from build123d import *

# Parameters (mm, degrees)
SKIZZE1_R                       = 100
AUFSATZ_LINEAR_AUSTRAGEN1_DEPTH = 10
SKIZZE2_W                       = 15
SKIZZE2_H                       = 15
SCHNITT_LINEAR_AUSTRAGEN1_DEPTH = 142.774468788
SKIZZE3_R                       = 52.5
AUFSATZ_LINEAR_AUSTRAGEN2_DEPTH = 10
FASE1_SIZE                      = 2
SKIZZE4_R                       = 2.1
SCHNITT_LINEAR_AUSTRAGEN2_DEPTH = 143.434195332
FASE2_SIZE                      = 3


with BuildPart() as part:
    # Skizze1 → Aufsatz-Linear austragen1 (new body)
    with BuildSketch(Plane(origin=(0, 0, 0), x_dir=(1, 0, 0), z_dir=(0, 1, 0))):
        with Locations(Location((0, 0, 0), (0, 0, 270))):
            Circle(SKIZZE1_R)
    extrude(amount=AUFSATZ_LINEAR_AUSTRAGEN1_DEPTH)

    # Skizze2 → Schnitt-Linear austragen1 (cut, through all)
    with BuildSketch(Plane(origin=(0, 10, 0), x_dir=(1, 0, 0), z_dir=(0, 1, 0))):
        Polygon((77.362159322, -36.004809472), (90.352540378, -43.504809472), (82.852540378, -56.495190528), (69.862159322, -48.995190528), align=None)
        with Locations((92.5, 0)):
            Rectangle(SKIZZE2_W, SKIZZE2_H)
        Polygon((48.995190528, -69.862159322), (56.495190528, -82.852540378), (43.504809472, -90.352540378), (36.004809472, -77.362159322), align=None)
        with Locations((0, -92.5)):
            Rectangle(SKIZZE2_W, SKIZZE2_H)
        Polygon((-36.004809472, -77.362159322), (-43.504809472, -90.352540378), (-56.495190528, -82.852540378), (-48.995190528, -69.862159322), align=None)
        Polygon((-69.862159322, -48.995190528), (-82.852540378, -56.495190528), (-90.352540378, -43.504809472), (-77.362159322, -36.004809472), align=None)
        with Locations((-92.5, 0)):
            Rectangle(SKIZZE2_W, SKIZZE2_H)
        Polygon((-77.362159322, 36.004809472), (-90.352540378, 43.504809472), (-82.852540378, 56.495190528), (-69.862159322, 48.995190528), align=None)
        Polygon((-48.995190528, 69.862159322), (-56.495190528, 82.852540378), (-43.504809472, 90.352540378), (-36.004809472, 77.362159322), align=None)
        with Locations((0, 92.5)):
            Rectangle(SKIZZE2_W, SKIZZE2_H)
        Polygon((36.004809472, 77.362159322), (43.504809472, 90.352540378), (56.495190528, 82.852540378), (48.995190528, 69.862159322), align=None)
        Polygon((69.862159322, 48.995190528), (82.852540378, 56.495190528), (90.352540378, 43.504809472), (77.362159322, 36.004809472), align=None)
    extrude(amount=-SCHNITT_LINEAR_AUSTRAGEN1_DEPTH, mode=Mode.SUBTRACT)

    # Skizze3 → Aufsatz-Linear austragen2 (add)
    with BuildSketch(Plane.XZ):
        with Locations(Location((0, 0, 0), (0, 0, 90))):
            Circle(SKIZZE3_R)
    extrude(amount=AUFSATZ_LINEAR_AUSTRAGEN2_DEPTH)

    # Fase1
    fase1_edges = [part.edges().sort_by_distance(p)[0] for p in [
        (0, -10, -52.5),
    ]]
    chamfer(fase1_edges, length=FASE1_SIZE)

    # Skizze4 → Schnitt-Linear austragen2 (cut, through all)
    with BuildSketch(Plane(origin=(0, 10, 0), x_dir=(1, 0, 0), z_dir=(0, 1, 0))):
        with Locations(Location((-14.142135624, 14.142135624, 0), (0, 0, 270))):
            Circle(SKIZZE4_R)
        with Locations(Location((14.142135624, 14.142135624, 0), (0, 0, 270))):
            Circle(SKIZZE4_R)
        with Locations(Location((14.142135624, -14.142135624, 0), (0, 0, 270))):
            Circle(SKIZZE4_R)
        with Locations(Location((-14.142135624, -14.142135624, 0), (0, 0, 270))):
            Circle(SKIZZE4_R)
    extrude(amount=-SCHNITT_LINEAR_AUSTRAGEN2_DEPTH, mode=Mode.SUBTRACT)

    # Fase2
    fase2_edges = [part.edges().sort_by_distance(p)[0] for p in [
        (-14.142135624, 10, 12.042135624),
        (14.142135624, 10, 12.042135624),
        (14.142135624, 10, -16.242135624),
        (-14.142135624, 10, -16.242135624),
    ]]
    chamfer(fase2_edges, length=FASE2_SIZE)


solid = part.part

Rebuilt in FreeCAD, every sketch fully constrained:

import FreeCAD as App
import Part
import Sketcher

V = App.Vector
Q = App.Units.Quantity


def edges_at(feature, points):
    """Names of the edges that pass closest to the given points."""
    edges = feature.Shape.Edges
    near = lambda p: min(range(len(edges)), key=lambda i: edges[i].distToShape(Part.Vertex(*p))[0])
    return sorted({f"Edge{near(p) + 1}" for p in points})

doc = App.newDocument("Part")
body = doc.addObject("PartDesign::Body", "Body")

# Sketch on XZ plane
sketch1 = body.newObject("Sketcher::SketchObject", "Sketch")
sketch1.AttachmentSupport = (doc.getObject("XZ_Plane"), [""])
sketch1.MapMode = "FlatFace"
sketch1.addGeometry(Part.Circle(V(0, 0, 0), V(0, 0, 1), 100), False)
sketch1.addConstraint([
    Sketcher.Constraint("Coincident", 0, 3, -1, 1),
    Sketcher.Constraint("Diameter", 0, Q("200 mm")),
])
pad1 = body.newObject("PartDesign::Pad", "Pad")
pad1.Profile = sketch1
pad1.Length = 10
pad1.Reversed = True

# Sketch on XZ plane
sketch2 = body.newObject("Sketcher::SketchObject", "Sketch001")
sketch2.AttachmentSupport = (doc.getObject("XZ_Plane"), [""])
sketch2.MapMode = "FlatFace"
sketch2.AttachmentOffset = App.Placement(V(0, 0, -10), App.Rotation())
sketch2.addGeometry([
    Part.LineSegment(V(90, 44, 0), V(77, 36, 0)),  # 0
    Part.LineSegment(V(77, 36, 0), V(70, 49, 0)),  # 1
    Part.LineSegment(V(70, 49, 0), V(83, 56, 0)),  # 2
    Part.LineSegment(V(83, 56, 0), V(90, 44, 0)),  # 3
    Part.LineSegment(V(85, -8, 0), V(85, 8, 0)),  # 4
    Part.LineSegment(V(85, 8, 0), V(100, 8, 0)),  # 5
    Part.LineSegment(V(100, 8, 0), V(100, -8, 0)),  # 6
    Part.LineSegment(V(100, -8, 0), V(85, -8, 0)),  # 7
    Part.LineSegment(V(56, 83, 0), V(49, 70, 0)),  # 8
    Part.LineSegment(V(49, 70, 0), V(36, 77, 0)),  # 9
    Part.LineSegment(V(36, 77, 0), V(44, 90, 0)),  # 10
    Part.LineSegment(V(44, 90, 0), V(56, 83, 0)),  # 11
    Part.LineSegment(V(-8, 85, 0), V(-8, 100, 0)),  # 12
    Part.LineSegment(V(-8, 100, 0), V(8, 100, 0)),  # 13
    Part.LineSegment(V(8, 100, 0), V(8, 85, 0)),  # 14
    Part.LineSegment(V(8, 85, 0), V(-8, 85, 0)),  # 15
    Part.LineSegment(V(-44, 90, 0), V(-36, 77, 0)),  # 16
    Part.LineSegment(V(-36, 77, 0), V(-49, 70, 0)),  # 17
    Part.LineSegment(V(-49, 70, 0), V(-56, 83, 0)),  # 18
    Part.LineSegment(V(-56, 83, 0), V(-44, 90, 0)),  # 19
    Part.LineSegment(V(-83, 56, 0), V(-70, 49, 0)),  # 20
    Part.LineSegment(V(-70, 49, 0), V(-77, 36, 0)),  # 21
    Part.LineSegment(V(-77, 36, 0), V(-90, 44, 0)),  # 22
    Part.LineSegment(V(-90, 44, 0), V(-83, 56, 0)),  # 23
    Part.LineSegment(V(-100, -8, 0), V(-100, 8, 0)),  # 24
    Part.LineSegment(V(-100, 8, 0), V(-85, 8, 0)),  # 25
    Part.LineSegment(V(-85, 8, 0), V(-85, -8, 0)),  # 26
    Part.LineSegment(V(-85, -8, 0), V(-100, -8, 0)),  # 27
    Part.LineSegment(V(-90, -44, 0), V(-77, -36, 0)),  # 28
    Part.LineSegment(V(-77, -36, 0), V(-70, -49, 0)),  # 29
    Part.LineSegment(V(-70, -49, 0), V(-83, -56, 0)),  # 30
    Part.LineSegment(V(-83, -56, 0), V(-90, -44, 0)),  # 31
    Part.LineSegment(V(-56, -83, 0), V(-49, -70, 0)),  # 32
    Part.LineSegment(V(-49, -70, 0), V(-36, -77, 0)),  # 33
    Part.LineSegment(V(-36, -77, 0), V(-44, -90, 0)),  # 34
    Part.LineSegment(V(-44, -90, 0), V(-56, -83, 0)),  # 35
    Part.LineSegment(V(-8, -100, 0), V(-8, -85, 0)),  # 36
    Part.LineSegment(V(-8, -85, 0), V(8, -85, 0)),  # 37
    Part.LineSegment(V(8, -85, 0), V(8, -100, 0)),  # 38
    Part.LineSegment(V(8, -100, 0), V(-8, -100, 0)),  # 39
    Part.LineSegment(V(44, -90, 0), V(36, -77, 0)),  # 40
    Part.LineSegment(V(36, -77, 0), V(49, -70, 0)),  # 41
    Part.LineSegment(V(49, -70, 0), V(56, -83, 0)),  # 42
    Part.LineSegment(V(56, -83, 0), V(44, -90, 0)),  # 43
    Part.LineSegment(V(83, -56, 0), V(70, -49, 0)),  # 44
    Part.LineSegment(V(70, -49, 0), V(77, -36, 0)),  # 45
    Part.LineSegment(V(77, -36, 0), V(90, -44, 0)),  # 46
    Part.LineSegment(V(90, -44, 0), V(83, -56, 0)),  # 47
], False)
sketch2.addConstraint([
    Sketcher.Constraint("Coincident", 0, 2, 1, 1),
    Sketcher.Constraint("Coincident", 1, 2, 2, 1),
    Sketcher.Constraint("Coincident", 2, 2, 3, 1),
    Sketcher.Constraint("Coincident", 3, 2, 0, 1),
    Sketcher.Constraint("Coincident", 4, 2, 5, 1),
    Sketcher.Constraint("Coincident", 5, 2, 6, 1),
    Sketcher.Constraint("Coincident", 6, 2, 7, 1),
    Sketcher.Constraint("Coincident", 7, 2, 4, 1),
    Sketcher.Constraint("Coincident", 8, 2, 9, 1),
    Sketcher.Constraint("Coincident", 9, 2, 10, 1),
    Sketcher.Constraint("Coincident", 10, 2, 11, 1),
    Sketcher.Constraint("Coincident", 11, 2, 8, 1),
    Sketcher.Constraint("Coincident", 12, 2, 13, 1),
    Sketcher.Constraint("Coincident", 13, 2, 14, 1),
    Sketcher.Constraint("Coincident", 14, 2, 15, 1),
    Sketcher.Constraint("Coincident", 15, 2, 12, 1),
    Sketcher.Constraint("Coincident", 16, 2, 17, 1),
    Sketcher.Constraint("Coincident", 17, 2, 18, 1),
    Sketcher.Constraint("Coincident", 18, 2, 19, 1),
    Sketcher.Constraint("Coincident", 19, 2, 16, 1),
    Sketcher.Constraint("Coincident", 20, 2, 21, 1),
    Sketcher.Constraint("Coincident", 21, 2, 22, 1),
    Sketcher.Constraint("Coincident", 22, 2, 23, 1),
    Sketcher.Constraint("Coincident", 23, 2, 20, 1),
    Sketcher.Constraint("Coincident", 24, 2, 25, 1),
    Sketcher.Constraint("Coincident", 25, 2, 26, 1),
    Sketcher.Constraint("Coincident", 26, 2, 27, 1),
    Sketcher.Constraint("Coincident", 27, 2, 24, 1),
    Sketcher.Constraint("Coincident", 28, 2, 29, 1),
    Sketcher.Constraint("Coincident", 29, 2, 30, 1),
    Sketcher.Constraint("Coincident", 30, 2, 31, 1),
    Sketcher.Constraint("Coincident", 31, 2, 28, 1),
    Sketcher.Constraint("Coincident", 32, 2, 33, 1),
    Sketcher.Constraint("Coincident", 33, 2, 34, 1),
    Sketcher.Constraint("Coincident", 34, 2, 35, 1),
    Sketcher.Constraint("Coincident", 35, 2, 32, 1),
    Sketcher.Constraint("Coincident", 36, 2, 37, 1),
    Sketcher.Constraint("Coincident", 37, 2, 38, 1),
    Sketcher.Constraint("Coincident", 38, 2, 39, 1),
    Sketcher.Constraint("Coincident", 39, 2, 36, 1),
    Sketcher.Constraint("Coincident", 40, 2, 41, 1),
    Sketcher.Constraint("Coincident", 41, 2, 42, 1),
    Sketcher.Constraint("Coincident", 42, 2, 43, 1),
    Sketcher.Constraint("Coincident", 43, 2, 40, 1),
    Sketcher.Constraint("Coincident", 44, 2, 45, 1),
    Sketcher.Constraint("Coincident", 45, 2, 46, 1),
    Sketcher.Constraint("Coincident", 46, 2, 47, 1),
    Sketcher.Constraint("Coincident", 47, 2, 44, 1),
    Sketcher.Constraint("Vertical", 4),
    Sketcher.Constraint("Horizontal", 5),
    Sketcher.Constraint("Vertical", 6),
    Sketcher.Constraint("Horizontal", 7),
    Sketcher.Constraint("Vertical", 12),
    Sketcher.Constraint("Horizontal", 13),
    Sketcher.Constraint("Vertical", 14),
    Sketcher.Constraint("Horizontal", 15),
    Sketcher.Constraint("Vertical", 24),
    Sketcher.Constraint("Horizontal", 25),
    Sketcher.Constraint("Vertical", 26),
    Sketcher.Constraint("Horizontal", 27),
    Sketcher.Constraint("Vertical", 36),
    Sketcher.Constraint("Horizontal", 37),
    Sketcher.Constraint("Vertical", 38),
    Sketcher.Constraint("Horizontal", 39),
    Sketcher.Constraint("Symmetric", 6, 2, 24, 2, -1, 1),
    Sketcher.Constraint("Symmetric", 4, 2, 26, 2, -1, 1),
    Sketcher.Constraint("Symmetric", 0, 2, 28, 2, -1, 1),
    Sketcher.Constraint("Symmetric", 1, 2, 29, 2, -1, 1),
    Sketcher.Constraint("Symmetric", 2, 2, 30, 2, -1, 1),
    Sketcher.Constraint("Symmetric", 3, 2, 31, 2, -1, 1),
    Sketcher.Constraint("Symmetric", 8, 2, 32, 2, -1, 1),
    Sketcher.Constraint("Symmetric", 9, 2, 33, 2, -1, 1),
    Sketcher.Constraint("Symmetric", 10, 2, 34, 2, -1, 1),
    Sketcher.Constraint("Symmetric", 11, 2, 35, 2, -1, 1),
    Sketcher.Constraint("Symmetric", 14, 2, 36, 2, -1, 1),
    Sketcher.Constraint("Symmetric", 12, 2, 38, 2, -1, 1),
    Sketcher.Constraint("Symmetric", 16, 2, 40, 2, -1, 1),
    Sketcher.Constraint("Symmetric", 17, 2, 41, 2, -1, 1),
    Sketcher.Constraint("Symmetric", 18, 2, 42, 2, -1, 1),
    Sketcher.Constraint("Symmetric", 19, 2, 43, 2, -1, 1),
    Sketcher.Constraint("Symmetric", 20, 2, 44, 2, -1, 1),
    Sketcher.Constraint("Symmetric", 21, 2, 45, 2, -1, 1),
    Sketcher.Constraint("Symmetric", 22, 2, 46, 2, -1, 1),
    Sketcher.Constraint("Symmetric", 23, 2, 47, 2, -1, 1),
    Sketcher.Constraint("Symmetric", 9, 2, 16, 2, -2),
    Sketcher.Constraint("Symmetric", 8, 2, 17, 2, -2),
    Sketcher.Constraint("Symmetric", 11, 2, 18, 2, -2),
    Sketcher.Constraint("Symmetric", 10, 2, 19, 2, -2),
    Sketcher.Constraint("Symmetric", 1, 2, 20, 2, -2),
    Sketcher.Constraint("Symmetric", 0, 2, 21, 2, -2),
    Sketcher.Constraint("Symmetric", 3, 2, 22, 2, -2),
    Sketcher.Constraint("Symmetric", 2, 2, 23, 2, -2),
    Sketcher.Constraint("Perpendicular", 0, 1),
    Sketcher.Constraint("Perpendicular", 1, 2),
    Sketcher.Constraint("Perpendicular", 2, 3),
    Sketcher.Constraint("Perpendicular", 8, 9),
    Sketcher.Constraint("Perpendicular", 9, 10),
    Sketcher.Constraint("Perpendicular", 10, 11),
    Sketcher.Constraint("Parallel", 3, 16),
    Sketcher.Constraint("Horizontal", 5, 2, 24, 2),
    Sketcher.Constraint("Vertical", 15, 2, 36, 2),
    Sketcher.Constraint("Equal", 7, 13),
    Sketcher.Constraint("Equal", 39, 4),
    Sketcher.Constraint("Equal", 6, 12),
    Sketcher.Constraint("Equal", 0, 1),
    Sketcher.Constraint("Equal", 3, 8),
    Sketcher.Constraint("Equal", 8, 9),
    Sketcher.Constraint("DistanceX", 5, 1, 5, 2, Q("15 mm")),
    Sketcher.Constraint("Angle", 0, Q("-150 deg")),
    Sketcher.Constraint("Distance", 0, Q("15 mm")),
    Sketcher.Constraint("DistanceX", -1, 1, 4, 2, Q("85 mm")),
    Sketcher.Constraint("DistanceY", -1, 1, 12, 2, Q("100 mm")),
    Sketcher.Constraint("DistanceX", -1, 1, 0, 2, Q("77.362159 mm")),
    Sketcher.Constraint("DistanceY", -1, 1, 0, 2, Q("36.004809 mm")),
    Sketcher.Constraint("DistanceX", -1, 1, 8, 2, Q("48.995191 mm")),
    Sketcher.Constraint("DistanceY", -1, 1, 8, 2, Q("69.862159 mm")),
])
pocket1 = body.newObject("PartDesign::Pocket", "Pocket")
pocket1.Profile = sketch2
pocket1.Type = "ThroughAll"
pocket1.Reversed = True

# Sketch on XZ plane
sketch3 = body.newObject("Sketcher::SketchObject", "Sketch002")
sketch3.AttachmentSupport = (doc.getObject("XZ_Plane"), [""])
sketch3.MapMode = "FlatFace"
sketch3.addGeometry(Part.Circle(V(0, 0, 0), V(0, 0, 1), 52), False)
sketch3.addConstraint([
    Sketcher.Constraint("Coincident", 0, 3, -1, 1),
    Sketcher.Constraint("Diameter", 0, Q("105 mm")),
])
pad2 = body.newObject("PartDesign::Pad", "Pad001")
pad2.Profile = sketch3
pad2.Length = 10
doc.recompute()

chamfer = body.newObject("PartDesign::Chamfer", "Chamfer")
chamfer.Base = (pad2, edges_at(pad2, [(0, -10, -52.5)]))
chamfer.Size = 2

# Sketch on XZ plane
sketch4 = body.newObject("Sketcher::SketchObject", "Sketch003")
sketch4.AttachmentSupport = (doc.getObject("XZ_Plane"), [""])
sketch4.MapMode = "FlatFace"
sketch4.AttachmentOffset = App.Placement(V(0, 0, -10), App.Rotation())
sketch4.addGeometry([
    Part.Circle(V(-14.1, -14.1, 0), V(0, 0, 1), 2.1),
    Part.Circle(V(14.1, -14.1, 0), V(0, 0, 1), 2.1),
    Part.Circle(V(14.1, 14.1, 0), V(0, 0, 1), 2.1),
    Part.Circle(V(-14.1, 14.1, 0), V(0, 0, 1), 2.1),
], False)
sketch4.addConstraint([
    Sketcher.Constraint("Equal", 0, 1),
    Sketcher.Constraint("Equal", 1, 2),
    Sketcher.Constraint("Equal", 2, 3),
    Sketcher.Constraint("Symmetric", 0, 3, 2, 3, -1, 1),
    Sketcher.Constraint("Symmetric", 1, 3, 3, 3, -1, 1),
    Sketcher.Constraint("Symmetric", 0, 3, 1, 3, -2),
    Sketcher.Constraint("Diameter", 0, Q("4.2 mm")),
    Sketcher.Constraint("DistanceX", 0, 3, 1, 3, Q("28.284271 mm")),
    Sketcher.Constraint("DistanceY", 1, 3, 2, 3, Q("28.284271 mm")),
])
pocket2 = body.newObject("PartDesign::Pocket", "Pocket001")
pocket2.Profile = sketch4
pocket2.Type = "ThroughAll"
pocket2.Reversed = True
doc.recompute()

chamfer2 = body.newObject("PartDesign::Chamfer", "Chamfer001")
chamfer2.Base = (pocket2, edges_at(pocket2, [
    (-14.142, 10, 12.042),
    (14.142, 10, 12.042),
    (14.142, 10, -16.242),
    (-14.142, 10, -16.242),
]))
chamfer2.Size = 3

doc.recompute()
